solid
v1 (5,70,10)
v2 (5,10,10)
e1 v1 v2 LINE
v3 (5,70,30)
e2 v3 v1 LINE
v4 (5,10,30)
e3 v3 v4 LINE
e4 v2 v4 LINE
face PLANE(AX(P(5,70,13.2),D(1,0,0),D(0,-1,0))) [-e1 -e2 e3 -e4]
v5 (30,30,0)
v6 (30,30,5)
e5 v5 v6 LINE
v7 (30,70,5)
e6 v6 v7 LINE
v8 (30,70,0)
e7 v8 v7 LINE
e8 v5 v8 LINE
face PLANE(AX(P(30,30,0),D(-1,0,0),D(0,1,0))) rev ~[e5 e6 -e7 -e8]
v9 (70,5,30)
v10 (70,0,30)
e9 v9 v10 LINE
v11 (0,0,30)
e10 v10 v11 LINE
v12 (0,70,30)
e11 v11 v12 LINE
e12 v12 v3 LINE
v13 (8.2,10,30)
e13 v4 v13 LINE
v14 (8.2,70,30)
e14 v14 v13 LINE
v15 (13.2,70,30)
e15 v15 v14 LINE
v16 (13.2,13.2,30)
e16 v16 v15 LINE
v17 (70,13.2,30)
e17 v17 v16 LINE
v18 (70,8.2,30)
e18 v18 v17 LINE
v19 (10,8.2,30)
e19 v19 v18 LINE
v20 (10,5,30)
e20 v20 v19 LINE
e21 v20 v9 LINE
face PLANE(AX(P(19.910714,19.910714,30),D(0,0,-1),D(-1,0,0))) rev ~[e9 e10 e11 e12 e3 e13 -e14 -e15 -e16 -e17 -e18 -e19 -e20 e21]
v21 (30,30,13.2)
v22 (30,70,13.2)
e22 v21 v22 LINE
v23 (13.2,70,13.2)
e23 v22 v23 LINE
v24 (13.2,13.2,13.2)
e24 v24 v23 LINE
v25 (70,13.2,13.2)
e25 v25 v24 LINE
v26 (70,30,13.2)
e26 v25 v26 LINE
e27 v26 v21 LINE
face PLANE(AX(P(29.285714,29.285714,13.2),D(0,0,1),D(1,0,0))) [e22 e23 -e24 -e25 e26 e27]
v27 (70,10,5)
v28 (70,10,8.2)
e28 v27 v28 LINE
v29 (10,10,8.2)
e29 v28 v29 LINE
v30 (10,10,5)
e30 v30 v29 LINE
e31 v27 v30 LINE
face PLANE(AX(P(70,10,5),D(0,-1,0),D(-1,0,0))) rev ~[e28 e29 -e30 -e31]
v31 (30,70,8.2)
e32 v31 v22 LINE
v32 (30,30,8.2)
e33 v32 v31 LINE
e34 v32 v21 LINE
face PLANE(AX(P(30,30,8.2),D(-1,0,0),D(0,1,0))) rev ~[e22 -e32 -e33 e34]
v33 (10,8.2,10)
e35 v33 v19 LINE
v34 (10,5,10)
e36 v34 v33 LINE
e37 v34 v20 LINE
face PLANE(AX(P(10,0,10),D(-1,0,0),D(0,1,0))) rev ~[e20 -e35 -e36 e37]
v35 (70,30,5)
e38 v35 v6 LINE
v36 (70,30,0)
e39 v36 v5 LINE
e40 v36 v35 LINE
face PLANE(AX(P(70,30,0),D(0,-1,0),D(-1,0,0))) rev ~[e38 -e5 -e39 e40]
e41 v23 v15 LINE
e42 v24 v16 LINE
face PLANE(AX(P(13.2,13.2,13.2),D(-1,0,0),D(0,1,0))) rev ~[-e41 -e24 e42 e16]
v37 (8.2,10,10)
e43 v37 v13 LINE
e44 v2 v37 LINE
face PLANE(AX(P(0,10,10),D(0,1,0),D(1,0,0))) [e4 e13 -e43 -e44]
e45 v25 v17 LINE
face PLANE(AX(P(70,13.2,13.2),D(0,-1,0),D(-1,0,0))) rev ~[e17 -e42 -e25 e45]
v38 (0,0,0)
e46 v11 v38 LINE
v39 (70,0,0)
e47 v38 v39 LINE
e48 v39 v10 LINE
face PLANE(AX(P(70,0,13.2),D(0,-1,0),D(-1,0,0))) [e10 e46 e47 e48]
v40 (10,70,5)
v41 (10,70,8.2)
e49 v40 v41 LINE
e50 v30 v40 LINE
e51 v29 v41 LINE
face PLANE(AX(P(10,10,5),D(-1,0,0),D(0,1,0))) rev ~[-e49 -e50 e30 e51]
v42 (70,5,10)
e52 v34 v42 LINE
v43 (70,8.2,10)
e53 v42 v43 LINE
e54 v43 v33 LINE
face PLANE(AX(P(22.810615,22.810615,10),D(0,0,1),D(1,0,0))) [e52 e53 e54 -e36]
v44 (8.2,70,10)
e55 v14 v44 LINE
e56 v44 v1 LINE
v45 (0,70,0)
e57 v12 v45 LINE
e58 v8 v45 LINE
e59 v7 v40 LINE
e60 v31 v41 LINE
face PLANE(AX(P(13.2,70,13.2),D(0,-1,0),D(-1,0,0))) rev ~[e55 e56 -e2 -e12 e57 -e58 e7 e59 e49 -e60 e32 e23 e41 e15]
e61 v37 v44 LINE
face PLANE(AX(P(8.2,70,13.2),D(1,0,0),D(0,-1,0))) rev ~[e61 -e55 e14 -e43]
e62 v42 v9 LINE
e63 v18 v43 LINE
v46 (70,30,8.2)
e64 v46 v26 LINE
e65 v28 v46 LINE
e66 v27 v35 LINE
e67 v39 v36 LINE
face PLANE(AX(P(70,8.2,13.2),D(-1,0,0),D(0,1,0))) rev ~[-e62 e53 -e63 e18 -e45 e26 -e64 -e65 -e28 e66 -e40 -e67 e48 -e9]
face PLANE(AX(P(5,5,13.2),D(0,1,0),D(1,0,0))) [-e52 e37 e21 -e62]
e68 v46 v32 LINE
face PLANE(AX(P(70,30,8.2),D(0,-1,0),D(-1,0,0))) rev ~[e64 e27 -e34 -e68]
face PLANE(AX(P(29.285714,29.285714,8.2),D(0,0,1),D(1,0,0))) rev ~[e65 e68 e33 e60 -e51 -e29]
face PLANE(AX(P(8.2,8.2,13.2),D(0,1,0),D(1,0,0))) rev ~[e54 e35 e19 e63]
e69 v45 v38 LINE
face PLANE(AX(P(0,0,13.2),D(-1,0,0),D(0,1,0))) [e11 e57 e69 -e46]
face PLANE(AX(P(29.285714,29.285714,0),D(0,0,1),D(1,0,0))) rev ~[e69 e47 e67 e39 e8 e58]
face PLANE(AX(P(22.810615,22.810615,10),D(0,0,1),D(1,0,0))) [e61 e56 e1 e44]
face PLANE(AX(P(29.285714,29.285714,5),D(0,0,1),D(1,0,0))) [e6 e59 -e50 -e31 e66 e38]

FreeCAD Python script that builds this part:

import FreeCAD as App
import Part
import Sketcher

V = App.Vector

doc = App.newDocument("Part")
body = doc.addObject("PartDesign::Body", "Body")

# Sketch on XY plane
sketch1 = body.newObject("Sketcher::SketchObject", "Sketch")
sketch1.AttachmentSupport = (doc.getObject("XY_Plane"), [""])
sketch1.MapMode = "FlatFace"
sketch1.addGeometry([
    Part.LineSegment(V(0, 0, 0), V(70, 0, 0)),  # 0
    Part.LineSegment(V(70, 0, 0), V(70, 30, 0)),  # 1
    Part.LineSegment(V(70, 30, 0), V(30, 30, 0)),  # 2
    Part.LineSegment(V(30, 30, 0), V(30, 70, 0)),  # 3
    Part.LineSegment(V(30, 70, 0), V(0, 70, 0)),  # 4
    Part.LineSegment(V(0, 70, 0), V(0, 0, 0)),  # 5
], False)
sketch1.addConstraint([
    Sketcher.Constraint("Coincident", 0, 2, 1, 1),
    Sketcher.Constraint("Coincident", 1, 2, 2, 1),
    Sketcher.Constraint("Coincident", 2, 2, 3, 1),
    Sketcher.Constraint("Coincident", 3, 2, 4, 1),
    Sketcher.Constraint("Coincident", 4, 2, 5, 1),
    Sketcher.Constraint("Coincident", 5, 2, 0, 1),
    Sketcher.Constraint("Horizontal", 0),
    Sketcher.Constraint("Vertical", 1),
    Sketcher.Constraint("Horizontal", 2),
    Sketcher.Constraint("Vertical", 3),
    Sketcher.Constraint("Horizontal", 4),
    Sketcher.Constraint("Vertical", 5),
    Sketcher.Constraint("Coincident", 5, 2, -1, 1),
    Sketcher.Constraint("Equal", 4, 1),
    Sketcher.Constraint("Equal", 2, 3),
    Sketcher.Constraint("DistanceX", 0, 1, 0, 2, 70.0),
    Sketcher.Constraint("DistanceX", 2, 2, 2, 1, 40.0),
])
pad1 = body.newObject("PartDesign::Pad", "Pad")
pad1.Profile = sketch1
pad1.Length = 5

# Sketch on XY plane
sketch2 = body.newObject("Sketcher::SketchObject", "Sketch001")
sketch2.AttachmentSupport = (doc.getObject("XY_Plane"), [""])
sketch2.MapMode = "FlatFace"
sketch2.AttachmentOffset = App.Placement(V(0, 0, 5), App.Rotation())
sketch2.addGeometry([
    Part.LineSegment(V(0, 0, 0), V(70, 0, 0)),  # 0
    Part.LineSegment(V(70, 0, 0), V(70, 10, 0)),  # 1
    Part.LineSegment(V(70, 10, 0), V(10, 10, 0)),  # 2
    Part.LineSegment(V(10, 10, 0), V(10, 70, 0)),  # 3
    Part.LineSegment(V(10, 70, 0), V(0, 70, 0)),  # 4
    Part.LineSegment(V(0, 70, 0), V(0, 0, 0)),  # 5
], False)
sketch2.addConstraint([
    Sketcher.Constraint("Coincident", 0, 2, 1, 1),
    Sketcher.Constraint("Coincident", 1, 2, 2, 1),
    Sketcher.Constraint("Coincident", 2, 2, 3, 1),
    Sketcher.Constraint("Coincident", 3, 2, 4, 1),
    Sketcher.Constraint("Coincident", 4, 2, 5, 1),
    Sketcher.Constraint("Coincident", 5, 2, 0, 1),
    Sketcher.Constraint("Horizontal", 0),
    Sketcher.Constraint("Vertical", 1),
    Sketcher.Constraint("Horizontal", 2),
    Sketcher.Constraint("Vertical", 3),
    Sketcher.Constraint("Horizontal", 4),
    Sketcher.Constraint("Vertical", 5),
    Sketcher.Constraint("Coincident", 5, 2, -1, 1),
    Sketcher.Constraint("Equal", 4, 1),
    Sketcher.Constraint("Equal", 2, 3),
    Sketcher.Constraint("DistanceX", 0, 1, 0, 2, 70.0),
    Sketcher.Constraint("DistanceX", 2, 2, 2, 1, 60.0),
])
pad2 = body.newObject("PartDesign::Pad", "Pad001")
pad2.Profile = sketch2
pad2.Length = 3.2

# Sketch on XY plane
sketch3 = body.newObject("Sketcher::SketchObject", "Sketch002")
sketch3.AttachmentSupport = (doc.getObject("XY_Plane"), [""])
sketch3.MapMode = "FlatFace"
sketch3.AttachmentOffset = App.Placement(V(0, 0, 8.2), App.Rotation())
sketch3.addGeometry([
    Part.LineSegment(V(0, 0, 0), V(70, 0, 0)),  # 0
    Part.LineSegment(V(70, 0, 0), V(70, 30, 0)),  # 1
    Part.LineSegment(V(70, 30, 0), V(30, 30, 0)),  # 2
    Part.LineSegment(V(30, 30, 0), V(30, 70, 0)),  # 3
    Part.LineSegment(V(30, 70, 0), V(0, 70, 0)),  # 4
    Part.LineSegment(V(0, 70, 0), V(0, 0, 0)),  # 5
], False)
sketch3.addConstraint([
    Sketcher.Constraint("Coincident", 0, 2, 1, 1),
    Sketcher.Constraint("Coincident", 1, 2, 2, 1),
    Sketcher.Constraint("Coincident", 2, 2, 3, 1),
    Sketcher.Constraint("Coincident", 3, 2, 4, 1),
    Sketcher.Constraint("Coincident", 4, 2, 5, 1),
    Sketcher.Constraint("Coincident", 5, 2, 0, 1),
    Sketcher.Constraint("Horizontal", 0),
    Sketcher.Constraint("Vertical", 1),
    Sketcher.Constraint("Horizontal", 2),
    Sketcher.Constraint("Vertical", 3),
    Sketcher.Constraint("Horizontal", 4),
    Sketcher.Constraint("Vertical", 5),
    Sketcher.Constraint("Coincident", 5, 2, -1, 1),
    Sketcher.Constraint("Equal", 4, 1),
    Sketcher.Constraint("Equal", 2, 3),
    Sketcher.Constraint("DistanceX", 0, 1, 0, 2, 70.0),
    Sketcher.Constraint("DistanceX", 2, 2, 2, 1, 40.0),
])
pad3 = body.newObject("PartDesign::Pad", "Pad002")
pad3.Profile = sketch3
pad3.Length = 5

# Sketch on XY plane
sketch4 = body.newObject("Sketcher::SketchObject", "Sketch003")
sketch4.AttachmentSupport = (doc.getObject("XY_Plane"), [""])
sketch4.MapMode = "FlatFace"
sketch4.AttachmentOffset = App.Placement(V(0, 0, 13.2), App.Rotation())
sketch4.addGeometry([
    Part.LineSegment(V(5, 70, 0), V(5, 5, 0)),  # 0
    Part.LineSegment(V(5, 5, 0), V(70, 5, 0)),  # 1
    Part.LineSegment(V(70, 5, 0), V(70, 8.2, 0)),  # 2
    Part.LineSegment(V(70, 8.2, 0), V(8.2, 8.2, 0)),  # 3
    Part.LineSegment(V(8.2, 8.2, 0), V(8.2, 70, 0)),  # 4
    Part.LineSegment(V(8.2, 70, 0), V(5, 70, 0)),  # 5
], False)
sketch4.addConstraint([
    Sketcher.Constraint("Coincident", 0, 2, 1, 1),
    Sketcher.Constraint("Coincident", 1, 2, 2, 1),
    Sketcher.Constraint("Coincident", 2, 2, 3, 1),
    Sketcher.Constraint("Coincident", 3, 2, 4, 1),
    Sketcher.Constraint("Coincident", 4, 2, 5, 1),
    Sketcher.Constraint("Coincident", 5, 2, 0, 1),
    Sketcher.Constraint("Vertical", 0),
    Sketcher.Constraint("Horizontal", 1),
    Sketcher.Constraint("Vertical", 2),
    Sketcher.Constraint("Horizontal", 3),
    Sketcher.Constraint("Vertical", 4),
    Sketcher.Constraint("Horizontal", 5),
    Sketcher.Constraint("Equal", 1, 0),
    Sketcher.Constraint("Equal", 5, 2),
    Sketcher.Constraint("DistanceX", 1, 1, 1, 2, 65.0),
    Sketcher.Constraint("DistanceX", 3, 2, 3, 1, 61.8),
    Sketcher.Constraint("DistanceX", -1, 1, 0, 2, 5.0),
    Sketcher.Constraint("DistanceY", -1, 1, 0, 2, 5.0),
])
pocket1 = body.newObject("PartDesign::Pocket", "Pocket")
pocket1.Profile = sketch4
pocket1.Length = 3.2

# Sketch on XY plane
sketch5 = body.newObject("Sketcher::SketchObject", "Sketch004")
sketch5.AttachmentSupport = (doc.getObject("XY_Plane"), [""])
sketch5.MapMode = "FlatFace"
sketch5.AttachmentOffset = App.Placement(V(0, 0, 13.2), App.Rotation())
sketch5.addGeometry([
    Part.LineSegment(V(0, 70, 0), V(0, 0, 0)),  # 0
    Part.LineSegment(V(0, 0, 0), V(70, 0, 0)),  # 1
    Part.LineSegment(V(70, 0, 0), V(70, 5, 0)),  # 2
    Part.LineSegment(V(70, 5, 0), V(5, 5, 0)),  # 3
    Part.LineSegment(V(5, 5, 0), V(5, 70, 0)),  # 4
    Part.LineSegment(V(5, 70, 0), V(0, 70, 0)),  # 5
], False)
sketch5.addConstraint([
    Sketcher.Constraint("Coincident", 0, 2, 1, 1),
    Sketcher.Constraint("Coincident", 1, 2, 2, 1),
    Sketcher.Constraint("Coincident", 2, 2, 3, 1),
    Sketcher.Constraint("Coincident", 3, 2, 4, 1),
    Sketcher.Constraint("Coincident", 4, 2, 5, 1),
    Sketcher.Constraint("Coincident", 5, 2, 0, 1),
    Sketcher.Constraint("Vertical", 0),
    Sketcher.Constraint("Horizontal", 1),
    Sketcher.Constraint("Vertical", 2),
    Sketcher.Constraint("Horizontal", 3),
    Sketcher.Constraint("Vertical", 4),
    Sketcher.Constraint("Horizontal", 5),
    Sketcher.Constraint("Coincident", 0, 2, -1, 1),
    Sketcher.Constraint("Equal", 1, 0),
    Sketcher.Constraint("Equal", 5, 2),
    Sketcher.Constraint("DistanceX", 1, 1, 1, 2, 70.0),
    Sketcher.Constraint("DistanceX", 3, 2, 3, 1, 65.0),
])
pad4 = body.newObject("PartDesign::Pad", "Pad003")
pad4.Profile = sketch5
pad4.Length = 16.8

# Sketch on XY plane
sketch6 = body.newObject("Sketcher::SketchObject", "Sketch005")
sketch6.AttachmentSupport = (doc.getObject("XY_Plane"), [""])
sketch6.MapMode = "FlatFace"
sketch6.AttachmentOffset = App.Placement(V(0, 0, 13.2), App.Rotation())
sketch6.addGeometry([
    Part.LineSegment(V(70, 8, 0), V(70, 13, 0)),  # 0
    Part.LineSegment(V(70, 13, 0), V(13, 13, 0)),  # 1
    Part.LineSegment(V(13, 13, 0), V(13, 70, 0)),  # 2
    Part.LineSegment(V(13, 70, 0), V(8, 70, 0)),  # 3
    Part.LineSegment(V(8, 70, 0), V(8, 8, 0)),  # 4
    Part.LineSegment(V(8, 8, 0), V(70, 8, 0)),  # 5
], False)
sketch6.addConstraint([
    Sketcher.Constraint("Coincident", 0, 2, 1, 1),
    Sketcher.Constraint("Coincident", 1, 2, 2, 1),
    Sketcher.Constraint("Coincident", 2, 2, 3, 1),
    Sketcher.Constraint("Coincident", 3, 2, 4, 1),
    Sketcher.Constraint("Coincident", 4, 2, 5, 1),
    Sketcher.Constraint("Coincident", 5, 2, 0, 1),
    Sketcher.Constraint("Vertical", 0),
    Sketcher.Constraint("Horizontal", 1),
    Sketcher.Constraint("Vertical", 2),
    Sketcher.Constraint("Horizontal", 3),
    Sketcher.Constraint("Vertical", 4),
    Sketcher.Constraint("Horizontal", 5),
    Sketcher.Constraint("Equal", 3, 0),
    Sketcher.Constraint("Equal", 1, 2),
    Sketcher.Constraint("DistanceX", 3, 2, 3, 1, 5.0),
    Sketcher.Constraint("DistanceX", 1, 2, 1, 1, 56.8),
    Sketcher.Constraint("DistanceX", -1, 1, 0, 2, 70.0),
    Sketcher.Constraint("DistanceY", -1, 1, 2, 2, 70.0),
])
pad5 = body.newObject("PartDesign::Pad", "Pad004")
pad5.Profile = sketch6
pad5.Length = 16.8

# Sketch on XY plane
sketch7 = body.newObject("Sketcher::SketchObject", "Sketch006")
sketch7.AttachmentSupport = (doc.getObject("XY_Plane"), [""])
sketch7.MapMode = "FlatFace"
sketch7.AttachmentOffset = App.Placement(V(0, 0, 10), App.Rotation())
sketch7.addGeometry([
    Part.LineSegment(V(0, 10, 0), V(0, 0, 0)),
    Part.LineSegment(V(0, 0, 0), V(10, 0, 0)),
    Part.LineSegment(V(10, 0, 0), V(10, 10, 0)),
    Part.LineSegment(V(10, 10, 0), V(0, 10, 0)),
], False)
sketch7.addConstraint([
    Sketcher.Constraint("Coincident", 0, 2, 1, 1),
    Sketcher.Constraint("Coincident", 1, 2, 2, 1),
    Sketcher.Constraint("Coincident", 2, 2, 3, 1),
    Sketcher.Constraint("Coincident", 3, 2, 0, 1),
    Sketcher.Constraint("Vertical", 0),
    Sketcher.Constraint("Horizontal", 1),
    Sketcher.Constraint("Vertical", 2),
    Sketcher.Constraint("Horizontal", 3),
    Sketcher.Constraint("Coincident", 0, 2, -1, 1),
    Sketcher.Constraint("Equal", 3, 0),
    Sketcher.Constraint("DistanceX", 1, 1, 1, 2, 10.0),
])
pad6 = body.newObject("PartDesign::Pad", "Pad005")
pad6.Profile = sketch7
pad6.Length = 20

doc.recompute()
